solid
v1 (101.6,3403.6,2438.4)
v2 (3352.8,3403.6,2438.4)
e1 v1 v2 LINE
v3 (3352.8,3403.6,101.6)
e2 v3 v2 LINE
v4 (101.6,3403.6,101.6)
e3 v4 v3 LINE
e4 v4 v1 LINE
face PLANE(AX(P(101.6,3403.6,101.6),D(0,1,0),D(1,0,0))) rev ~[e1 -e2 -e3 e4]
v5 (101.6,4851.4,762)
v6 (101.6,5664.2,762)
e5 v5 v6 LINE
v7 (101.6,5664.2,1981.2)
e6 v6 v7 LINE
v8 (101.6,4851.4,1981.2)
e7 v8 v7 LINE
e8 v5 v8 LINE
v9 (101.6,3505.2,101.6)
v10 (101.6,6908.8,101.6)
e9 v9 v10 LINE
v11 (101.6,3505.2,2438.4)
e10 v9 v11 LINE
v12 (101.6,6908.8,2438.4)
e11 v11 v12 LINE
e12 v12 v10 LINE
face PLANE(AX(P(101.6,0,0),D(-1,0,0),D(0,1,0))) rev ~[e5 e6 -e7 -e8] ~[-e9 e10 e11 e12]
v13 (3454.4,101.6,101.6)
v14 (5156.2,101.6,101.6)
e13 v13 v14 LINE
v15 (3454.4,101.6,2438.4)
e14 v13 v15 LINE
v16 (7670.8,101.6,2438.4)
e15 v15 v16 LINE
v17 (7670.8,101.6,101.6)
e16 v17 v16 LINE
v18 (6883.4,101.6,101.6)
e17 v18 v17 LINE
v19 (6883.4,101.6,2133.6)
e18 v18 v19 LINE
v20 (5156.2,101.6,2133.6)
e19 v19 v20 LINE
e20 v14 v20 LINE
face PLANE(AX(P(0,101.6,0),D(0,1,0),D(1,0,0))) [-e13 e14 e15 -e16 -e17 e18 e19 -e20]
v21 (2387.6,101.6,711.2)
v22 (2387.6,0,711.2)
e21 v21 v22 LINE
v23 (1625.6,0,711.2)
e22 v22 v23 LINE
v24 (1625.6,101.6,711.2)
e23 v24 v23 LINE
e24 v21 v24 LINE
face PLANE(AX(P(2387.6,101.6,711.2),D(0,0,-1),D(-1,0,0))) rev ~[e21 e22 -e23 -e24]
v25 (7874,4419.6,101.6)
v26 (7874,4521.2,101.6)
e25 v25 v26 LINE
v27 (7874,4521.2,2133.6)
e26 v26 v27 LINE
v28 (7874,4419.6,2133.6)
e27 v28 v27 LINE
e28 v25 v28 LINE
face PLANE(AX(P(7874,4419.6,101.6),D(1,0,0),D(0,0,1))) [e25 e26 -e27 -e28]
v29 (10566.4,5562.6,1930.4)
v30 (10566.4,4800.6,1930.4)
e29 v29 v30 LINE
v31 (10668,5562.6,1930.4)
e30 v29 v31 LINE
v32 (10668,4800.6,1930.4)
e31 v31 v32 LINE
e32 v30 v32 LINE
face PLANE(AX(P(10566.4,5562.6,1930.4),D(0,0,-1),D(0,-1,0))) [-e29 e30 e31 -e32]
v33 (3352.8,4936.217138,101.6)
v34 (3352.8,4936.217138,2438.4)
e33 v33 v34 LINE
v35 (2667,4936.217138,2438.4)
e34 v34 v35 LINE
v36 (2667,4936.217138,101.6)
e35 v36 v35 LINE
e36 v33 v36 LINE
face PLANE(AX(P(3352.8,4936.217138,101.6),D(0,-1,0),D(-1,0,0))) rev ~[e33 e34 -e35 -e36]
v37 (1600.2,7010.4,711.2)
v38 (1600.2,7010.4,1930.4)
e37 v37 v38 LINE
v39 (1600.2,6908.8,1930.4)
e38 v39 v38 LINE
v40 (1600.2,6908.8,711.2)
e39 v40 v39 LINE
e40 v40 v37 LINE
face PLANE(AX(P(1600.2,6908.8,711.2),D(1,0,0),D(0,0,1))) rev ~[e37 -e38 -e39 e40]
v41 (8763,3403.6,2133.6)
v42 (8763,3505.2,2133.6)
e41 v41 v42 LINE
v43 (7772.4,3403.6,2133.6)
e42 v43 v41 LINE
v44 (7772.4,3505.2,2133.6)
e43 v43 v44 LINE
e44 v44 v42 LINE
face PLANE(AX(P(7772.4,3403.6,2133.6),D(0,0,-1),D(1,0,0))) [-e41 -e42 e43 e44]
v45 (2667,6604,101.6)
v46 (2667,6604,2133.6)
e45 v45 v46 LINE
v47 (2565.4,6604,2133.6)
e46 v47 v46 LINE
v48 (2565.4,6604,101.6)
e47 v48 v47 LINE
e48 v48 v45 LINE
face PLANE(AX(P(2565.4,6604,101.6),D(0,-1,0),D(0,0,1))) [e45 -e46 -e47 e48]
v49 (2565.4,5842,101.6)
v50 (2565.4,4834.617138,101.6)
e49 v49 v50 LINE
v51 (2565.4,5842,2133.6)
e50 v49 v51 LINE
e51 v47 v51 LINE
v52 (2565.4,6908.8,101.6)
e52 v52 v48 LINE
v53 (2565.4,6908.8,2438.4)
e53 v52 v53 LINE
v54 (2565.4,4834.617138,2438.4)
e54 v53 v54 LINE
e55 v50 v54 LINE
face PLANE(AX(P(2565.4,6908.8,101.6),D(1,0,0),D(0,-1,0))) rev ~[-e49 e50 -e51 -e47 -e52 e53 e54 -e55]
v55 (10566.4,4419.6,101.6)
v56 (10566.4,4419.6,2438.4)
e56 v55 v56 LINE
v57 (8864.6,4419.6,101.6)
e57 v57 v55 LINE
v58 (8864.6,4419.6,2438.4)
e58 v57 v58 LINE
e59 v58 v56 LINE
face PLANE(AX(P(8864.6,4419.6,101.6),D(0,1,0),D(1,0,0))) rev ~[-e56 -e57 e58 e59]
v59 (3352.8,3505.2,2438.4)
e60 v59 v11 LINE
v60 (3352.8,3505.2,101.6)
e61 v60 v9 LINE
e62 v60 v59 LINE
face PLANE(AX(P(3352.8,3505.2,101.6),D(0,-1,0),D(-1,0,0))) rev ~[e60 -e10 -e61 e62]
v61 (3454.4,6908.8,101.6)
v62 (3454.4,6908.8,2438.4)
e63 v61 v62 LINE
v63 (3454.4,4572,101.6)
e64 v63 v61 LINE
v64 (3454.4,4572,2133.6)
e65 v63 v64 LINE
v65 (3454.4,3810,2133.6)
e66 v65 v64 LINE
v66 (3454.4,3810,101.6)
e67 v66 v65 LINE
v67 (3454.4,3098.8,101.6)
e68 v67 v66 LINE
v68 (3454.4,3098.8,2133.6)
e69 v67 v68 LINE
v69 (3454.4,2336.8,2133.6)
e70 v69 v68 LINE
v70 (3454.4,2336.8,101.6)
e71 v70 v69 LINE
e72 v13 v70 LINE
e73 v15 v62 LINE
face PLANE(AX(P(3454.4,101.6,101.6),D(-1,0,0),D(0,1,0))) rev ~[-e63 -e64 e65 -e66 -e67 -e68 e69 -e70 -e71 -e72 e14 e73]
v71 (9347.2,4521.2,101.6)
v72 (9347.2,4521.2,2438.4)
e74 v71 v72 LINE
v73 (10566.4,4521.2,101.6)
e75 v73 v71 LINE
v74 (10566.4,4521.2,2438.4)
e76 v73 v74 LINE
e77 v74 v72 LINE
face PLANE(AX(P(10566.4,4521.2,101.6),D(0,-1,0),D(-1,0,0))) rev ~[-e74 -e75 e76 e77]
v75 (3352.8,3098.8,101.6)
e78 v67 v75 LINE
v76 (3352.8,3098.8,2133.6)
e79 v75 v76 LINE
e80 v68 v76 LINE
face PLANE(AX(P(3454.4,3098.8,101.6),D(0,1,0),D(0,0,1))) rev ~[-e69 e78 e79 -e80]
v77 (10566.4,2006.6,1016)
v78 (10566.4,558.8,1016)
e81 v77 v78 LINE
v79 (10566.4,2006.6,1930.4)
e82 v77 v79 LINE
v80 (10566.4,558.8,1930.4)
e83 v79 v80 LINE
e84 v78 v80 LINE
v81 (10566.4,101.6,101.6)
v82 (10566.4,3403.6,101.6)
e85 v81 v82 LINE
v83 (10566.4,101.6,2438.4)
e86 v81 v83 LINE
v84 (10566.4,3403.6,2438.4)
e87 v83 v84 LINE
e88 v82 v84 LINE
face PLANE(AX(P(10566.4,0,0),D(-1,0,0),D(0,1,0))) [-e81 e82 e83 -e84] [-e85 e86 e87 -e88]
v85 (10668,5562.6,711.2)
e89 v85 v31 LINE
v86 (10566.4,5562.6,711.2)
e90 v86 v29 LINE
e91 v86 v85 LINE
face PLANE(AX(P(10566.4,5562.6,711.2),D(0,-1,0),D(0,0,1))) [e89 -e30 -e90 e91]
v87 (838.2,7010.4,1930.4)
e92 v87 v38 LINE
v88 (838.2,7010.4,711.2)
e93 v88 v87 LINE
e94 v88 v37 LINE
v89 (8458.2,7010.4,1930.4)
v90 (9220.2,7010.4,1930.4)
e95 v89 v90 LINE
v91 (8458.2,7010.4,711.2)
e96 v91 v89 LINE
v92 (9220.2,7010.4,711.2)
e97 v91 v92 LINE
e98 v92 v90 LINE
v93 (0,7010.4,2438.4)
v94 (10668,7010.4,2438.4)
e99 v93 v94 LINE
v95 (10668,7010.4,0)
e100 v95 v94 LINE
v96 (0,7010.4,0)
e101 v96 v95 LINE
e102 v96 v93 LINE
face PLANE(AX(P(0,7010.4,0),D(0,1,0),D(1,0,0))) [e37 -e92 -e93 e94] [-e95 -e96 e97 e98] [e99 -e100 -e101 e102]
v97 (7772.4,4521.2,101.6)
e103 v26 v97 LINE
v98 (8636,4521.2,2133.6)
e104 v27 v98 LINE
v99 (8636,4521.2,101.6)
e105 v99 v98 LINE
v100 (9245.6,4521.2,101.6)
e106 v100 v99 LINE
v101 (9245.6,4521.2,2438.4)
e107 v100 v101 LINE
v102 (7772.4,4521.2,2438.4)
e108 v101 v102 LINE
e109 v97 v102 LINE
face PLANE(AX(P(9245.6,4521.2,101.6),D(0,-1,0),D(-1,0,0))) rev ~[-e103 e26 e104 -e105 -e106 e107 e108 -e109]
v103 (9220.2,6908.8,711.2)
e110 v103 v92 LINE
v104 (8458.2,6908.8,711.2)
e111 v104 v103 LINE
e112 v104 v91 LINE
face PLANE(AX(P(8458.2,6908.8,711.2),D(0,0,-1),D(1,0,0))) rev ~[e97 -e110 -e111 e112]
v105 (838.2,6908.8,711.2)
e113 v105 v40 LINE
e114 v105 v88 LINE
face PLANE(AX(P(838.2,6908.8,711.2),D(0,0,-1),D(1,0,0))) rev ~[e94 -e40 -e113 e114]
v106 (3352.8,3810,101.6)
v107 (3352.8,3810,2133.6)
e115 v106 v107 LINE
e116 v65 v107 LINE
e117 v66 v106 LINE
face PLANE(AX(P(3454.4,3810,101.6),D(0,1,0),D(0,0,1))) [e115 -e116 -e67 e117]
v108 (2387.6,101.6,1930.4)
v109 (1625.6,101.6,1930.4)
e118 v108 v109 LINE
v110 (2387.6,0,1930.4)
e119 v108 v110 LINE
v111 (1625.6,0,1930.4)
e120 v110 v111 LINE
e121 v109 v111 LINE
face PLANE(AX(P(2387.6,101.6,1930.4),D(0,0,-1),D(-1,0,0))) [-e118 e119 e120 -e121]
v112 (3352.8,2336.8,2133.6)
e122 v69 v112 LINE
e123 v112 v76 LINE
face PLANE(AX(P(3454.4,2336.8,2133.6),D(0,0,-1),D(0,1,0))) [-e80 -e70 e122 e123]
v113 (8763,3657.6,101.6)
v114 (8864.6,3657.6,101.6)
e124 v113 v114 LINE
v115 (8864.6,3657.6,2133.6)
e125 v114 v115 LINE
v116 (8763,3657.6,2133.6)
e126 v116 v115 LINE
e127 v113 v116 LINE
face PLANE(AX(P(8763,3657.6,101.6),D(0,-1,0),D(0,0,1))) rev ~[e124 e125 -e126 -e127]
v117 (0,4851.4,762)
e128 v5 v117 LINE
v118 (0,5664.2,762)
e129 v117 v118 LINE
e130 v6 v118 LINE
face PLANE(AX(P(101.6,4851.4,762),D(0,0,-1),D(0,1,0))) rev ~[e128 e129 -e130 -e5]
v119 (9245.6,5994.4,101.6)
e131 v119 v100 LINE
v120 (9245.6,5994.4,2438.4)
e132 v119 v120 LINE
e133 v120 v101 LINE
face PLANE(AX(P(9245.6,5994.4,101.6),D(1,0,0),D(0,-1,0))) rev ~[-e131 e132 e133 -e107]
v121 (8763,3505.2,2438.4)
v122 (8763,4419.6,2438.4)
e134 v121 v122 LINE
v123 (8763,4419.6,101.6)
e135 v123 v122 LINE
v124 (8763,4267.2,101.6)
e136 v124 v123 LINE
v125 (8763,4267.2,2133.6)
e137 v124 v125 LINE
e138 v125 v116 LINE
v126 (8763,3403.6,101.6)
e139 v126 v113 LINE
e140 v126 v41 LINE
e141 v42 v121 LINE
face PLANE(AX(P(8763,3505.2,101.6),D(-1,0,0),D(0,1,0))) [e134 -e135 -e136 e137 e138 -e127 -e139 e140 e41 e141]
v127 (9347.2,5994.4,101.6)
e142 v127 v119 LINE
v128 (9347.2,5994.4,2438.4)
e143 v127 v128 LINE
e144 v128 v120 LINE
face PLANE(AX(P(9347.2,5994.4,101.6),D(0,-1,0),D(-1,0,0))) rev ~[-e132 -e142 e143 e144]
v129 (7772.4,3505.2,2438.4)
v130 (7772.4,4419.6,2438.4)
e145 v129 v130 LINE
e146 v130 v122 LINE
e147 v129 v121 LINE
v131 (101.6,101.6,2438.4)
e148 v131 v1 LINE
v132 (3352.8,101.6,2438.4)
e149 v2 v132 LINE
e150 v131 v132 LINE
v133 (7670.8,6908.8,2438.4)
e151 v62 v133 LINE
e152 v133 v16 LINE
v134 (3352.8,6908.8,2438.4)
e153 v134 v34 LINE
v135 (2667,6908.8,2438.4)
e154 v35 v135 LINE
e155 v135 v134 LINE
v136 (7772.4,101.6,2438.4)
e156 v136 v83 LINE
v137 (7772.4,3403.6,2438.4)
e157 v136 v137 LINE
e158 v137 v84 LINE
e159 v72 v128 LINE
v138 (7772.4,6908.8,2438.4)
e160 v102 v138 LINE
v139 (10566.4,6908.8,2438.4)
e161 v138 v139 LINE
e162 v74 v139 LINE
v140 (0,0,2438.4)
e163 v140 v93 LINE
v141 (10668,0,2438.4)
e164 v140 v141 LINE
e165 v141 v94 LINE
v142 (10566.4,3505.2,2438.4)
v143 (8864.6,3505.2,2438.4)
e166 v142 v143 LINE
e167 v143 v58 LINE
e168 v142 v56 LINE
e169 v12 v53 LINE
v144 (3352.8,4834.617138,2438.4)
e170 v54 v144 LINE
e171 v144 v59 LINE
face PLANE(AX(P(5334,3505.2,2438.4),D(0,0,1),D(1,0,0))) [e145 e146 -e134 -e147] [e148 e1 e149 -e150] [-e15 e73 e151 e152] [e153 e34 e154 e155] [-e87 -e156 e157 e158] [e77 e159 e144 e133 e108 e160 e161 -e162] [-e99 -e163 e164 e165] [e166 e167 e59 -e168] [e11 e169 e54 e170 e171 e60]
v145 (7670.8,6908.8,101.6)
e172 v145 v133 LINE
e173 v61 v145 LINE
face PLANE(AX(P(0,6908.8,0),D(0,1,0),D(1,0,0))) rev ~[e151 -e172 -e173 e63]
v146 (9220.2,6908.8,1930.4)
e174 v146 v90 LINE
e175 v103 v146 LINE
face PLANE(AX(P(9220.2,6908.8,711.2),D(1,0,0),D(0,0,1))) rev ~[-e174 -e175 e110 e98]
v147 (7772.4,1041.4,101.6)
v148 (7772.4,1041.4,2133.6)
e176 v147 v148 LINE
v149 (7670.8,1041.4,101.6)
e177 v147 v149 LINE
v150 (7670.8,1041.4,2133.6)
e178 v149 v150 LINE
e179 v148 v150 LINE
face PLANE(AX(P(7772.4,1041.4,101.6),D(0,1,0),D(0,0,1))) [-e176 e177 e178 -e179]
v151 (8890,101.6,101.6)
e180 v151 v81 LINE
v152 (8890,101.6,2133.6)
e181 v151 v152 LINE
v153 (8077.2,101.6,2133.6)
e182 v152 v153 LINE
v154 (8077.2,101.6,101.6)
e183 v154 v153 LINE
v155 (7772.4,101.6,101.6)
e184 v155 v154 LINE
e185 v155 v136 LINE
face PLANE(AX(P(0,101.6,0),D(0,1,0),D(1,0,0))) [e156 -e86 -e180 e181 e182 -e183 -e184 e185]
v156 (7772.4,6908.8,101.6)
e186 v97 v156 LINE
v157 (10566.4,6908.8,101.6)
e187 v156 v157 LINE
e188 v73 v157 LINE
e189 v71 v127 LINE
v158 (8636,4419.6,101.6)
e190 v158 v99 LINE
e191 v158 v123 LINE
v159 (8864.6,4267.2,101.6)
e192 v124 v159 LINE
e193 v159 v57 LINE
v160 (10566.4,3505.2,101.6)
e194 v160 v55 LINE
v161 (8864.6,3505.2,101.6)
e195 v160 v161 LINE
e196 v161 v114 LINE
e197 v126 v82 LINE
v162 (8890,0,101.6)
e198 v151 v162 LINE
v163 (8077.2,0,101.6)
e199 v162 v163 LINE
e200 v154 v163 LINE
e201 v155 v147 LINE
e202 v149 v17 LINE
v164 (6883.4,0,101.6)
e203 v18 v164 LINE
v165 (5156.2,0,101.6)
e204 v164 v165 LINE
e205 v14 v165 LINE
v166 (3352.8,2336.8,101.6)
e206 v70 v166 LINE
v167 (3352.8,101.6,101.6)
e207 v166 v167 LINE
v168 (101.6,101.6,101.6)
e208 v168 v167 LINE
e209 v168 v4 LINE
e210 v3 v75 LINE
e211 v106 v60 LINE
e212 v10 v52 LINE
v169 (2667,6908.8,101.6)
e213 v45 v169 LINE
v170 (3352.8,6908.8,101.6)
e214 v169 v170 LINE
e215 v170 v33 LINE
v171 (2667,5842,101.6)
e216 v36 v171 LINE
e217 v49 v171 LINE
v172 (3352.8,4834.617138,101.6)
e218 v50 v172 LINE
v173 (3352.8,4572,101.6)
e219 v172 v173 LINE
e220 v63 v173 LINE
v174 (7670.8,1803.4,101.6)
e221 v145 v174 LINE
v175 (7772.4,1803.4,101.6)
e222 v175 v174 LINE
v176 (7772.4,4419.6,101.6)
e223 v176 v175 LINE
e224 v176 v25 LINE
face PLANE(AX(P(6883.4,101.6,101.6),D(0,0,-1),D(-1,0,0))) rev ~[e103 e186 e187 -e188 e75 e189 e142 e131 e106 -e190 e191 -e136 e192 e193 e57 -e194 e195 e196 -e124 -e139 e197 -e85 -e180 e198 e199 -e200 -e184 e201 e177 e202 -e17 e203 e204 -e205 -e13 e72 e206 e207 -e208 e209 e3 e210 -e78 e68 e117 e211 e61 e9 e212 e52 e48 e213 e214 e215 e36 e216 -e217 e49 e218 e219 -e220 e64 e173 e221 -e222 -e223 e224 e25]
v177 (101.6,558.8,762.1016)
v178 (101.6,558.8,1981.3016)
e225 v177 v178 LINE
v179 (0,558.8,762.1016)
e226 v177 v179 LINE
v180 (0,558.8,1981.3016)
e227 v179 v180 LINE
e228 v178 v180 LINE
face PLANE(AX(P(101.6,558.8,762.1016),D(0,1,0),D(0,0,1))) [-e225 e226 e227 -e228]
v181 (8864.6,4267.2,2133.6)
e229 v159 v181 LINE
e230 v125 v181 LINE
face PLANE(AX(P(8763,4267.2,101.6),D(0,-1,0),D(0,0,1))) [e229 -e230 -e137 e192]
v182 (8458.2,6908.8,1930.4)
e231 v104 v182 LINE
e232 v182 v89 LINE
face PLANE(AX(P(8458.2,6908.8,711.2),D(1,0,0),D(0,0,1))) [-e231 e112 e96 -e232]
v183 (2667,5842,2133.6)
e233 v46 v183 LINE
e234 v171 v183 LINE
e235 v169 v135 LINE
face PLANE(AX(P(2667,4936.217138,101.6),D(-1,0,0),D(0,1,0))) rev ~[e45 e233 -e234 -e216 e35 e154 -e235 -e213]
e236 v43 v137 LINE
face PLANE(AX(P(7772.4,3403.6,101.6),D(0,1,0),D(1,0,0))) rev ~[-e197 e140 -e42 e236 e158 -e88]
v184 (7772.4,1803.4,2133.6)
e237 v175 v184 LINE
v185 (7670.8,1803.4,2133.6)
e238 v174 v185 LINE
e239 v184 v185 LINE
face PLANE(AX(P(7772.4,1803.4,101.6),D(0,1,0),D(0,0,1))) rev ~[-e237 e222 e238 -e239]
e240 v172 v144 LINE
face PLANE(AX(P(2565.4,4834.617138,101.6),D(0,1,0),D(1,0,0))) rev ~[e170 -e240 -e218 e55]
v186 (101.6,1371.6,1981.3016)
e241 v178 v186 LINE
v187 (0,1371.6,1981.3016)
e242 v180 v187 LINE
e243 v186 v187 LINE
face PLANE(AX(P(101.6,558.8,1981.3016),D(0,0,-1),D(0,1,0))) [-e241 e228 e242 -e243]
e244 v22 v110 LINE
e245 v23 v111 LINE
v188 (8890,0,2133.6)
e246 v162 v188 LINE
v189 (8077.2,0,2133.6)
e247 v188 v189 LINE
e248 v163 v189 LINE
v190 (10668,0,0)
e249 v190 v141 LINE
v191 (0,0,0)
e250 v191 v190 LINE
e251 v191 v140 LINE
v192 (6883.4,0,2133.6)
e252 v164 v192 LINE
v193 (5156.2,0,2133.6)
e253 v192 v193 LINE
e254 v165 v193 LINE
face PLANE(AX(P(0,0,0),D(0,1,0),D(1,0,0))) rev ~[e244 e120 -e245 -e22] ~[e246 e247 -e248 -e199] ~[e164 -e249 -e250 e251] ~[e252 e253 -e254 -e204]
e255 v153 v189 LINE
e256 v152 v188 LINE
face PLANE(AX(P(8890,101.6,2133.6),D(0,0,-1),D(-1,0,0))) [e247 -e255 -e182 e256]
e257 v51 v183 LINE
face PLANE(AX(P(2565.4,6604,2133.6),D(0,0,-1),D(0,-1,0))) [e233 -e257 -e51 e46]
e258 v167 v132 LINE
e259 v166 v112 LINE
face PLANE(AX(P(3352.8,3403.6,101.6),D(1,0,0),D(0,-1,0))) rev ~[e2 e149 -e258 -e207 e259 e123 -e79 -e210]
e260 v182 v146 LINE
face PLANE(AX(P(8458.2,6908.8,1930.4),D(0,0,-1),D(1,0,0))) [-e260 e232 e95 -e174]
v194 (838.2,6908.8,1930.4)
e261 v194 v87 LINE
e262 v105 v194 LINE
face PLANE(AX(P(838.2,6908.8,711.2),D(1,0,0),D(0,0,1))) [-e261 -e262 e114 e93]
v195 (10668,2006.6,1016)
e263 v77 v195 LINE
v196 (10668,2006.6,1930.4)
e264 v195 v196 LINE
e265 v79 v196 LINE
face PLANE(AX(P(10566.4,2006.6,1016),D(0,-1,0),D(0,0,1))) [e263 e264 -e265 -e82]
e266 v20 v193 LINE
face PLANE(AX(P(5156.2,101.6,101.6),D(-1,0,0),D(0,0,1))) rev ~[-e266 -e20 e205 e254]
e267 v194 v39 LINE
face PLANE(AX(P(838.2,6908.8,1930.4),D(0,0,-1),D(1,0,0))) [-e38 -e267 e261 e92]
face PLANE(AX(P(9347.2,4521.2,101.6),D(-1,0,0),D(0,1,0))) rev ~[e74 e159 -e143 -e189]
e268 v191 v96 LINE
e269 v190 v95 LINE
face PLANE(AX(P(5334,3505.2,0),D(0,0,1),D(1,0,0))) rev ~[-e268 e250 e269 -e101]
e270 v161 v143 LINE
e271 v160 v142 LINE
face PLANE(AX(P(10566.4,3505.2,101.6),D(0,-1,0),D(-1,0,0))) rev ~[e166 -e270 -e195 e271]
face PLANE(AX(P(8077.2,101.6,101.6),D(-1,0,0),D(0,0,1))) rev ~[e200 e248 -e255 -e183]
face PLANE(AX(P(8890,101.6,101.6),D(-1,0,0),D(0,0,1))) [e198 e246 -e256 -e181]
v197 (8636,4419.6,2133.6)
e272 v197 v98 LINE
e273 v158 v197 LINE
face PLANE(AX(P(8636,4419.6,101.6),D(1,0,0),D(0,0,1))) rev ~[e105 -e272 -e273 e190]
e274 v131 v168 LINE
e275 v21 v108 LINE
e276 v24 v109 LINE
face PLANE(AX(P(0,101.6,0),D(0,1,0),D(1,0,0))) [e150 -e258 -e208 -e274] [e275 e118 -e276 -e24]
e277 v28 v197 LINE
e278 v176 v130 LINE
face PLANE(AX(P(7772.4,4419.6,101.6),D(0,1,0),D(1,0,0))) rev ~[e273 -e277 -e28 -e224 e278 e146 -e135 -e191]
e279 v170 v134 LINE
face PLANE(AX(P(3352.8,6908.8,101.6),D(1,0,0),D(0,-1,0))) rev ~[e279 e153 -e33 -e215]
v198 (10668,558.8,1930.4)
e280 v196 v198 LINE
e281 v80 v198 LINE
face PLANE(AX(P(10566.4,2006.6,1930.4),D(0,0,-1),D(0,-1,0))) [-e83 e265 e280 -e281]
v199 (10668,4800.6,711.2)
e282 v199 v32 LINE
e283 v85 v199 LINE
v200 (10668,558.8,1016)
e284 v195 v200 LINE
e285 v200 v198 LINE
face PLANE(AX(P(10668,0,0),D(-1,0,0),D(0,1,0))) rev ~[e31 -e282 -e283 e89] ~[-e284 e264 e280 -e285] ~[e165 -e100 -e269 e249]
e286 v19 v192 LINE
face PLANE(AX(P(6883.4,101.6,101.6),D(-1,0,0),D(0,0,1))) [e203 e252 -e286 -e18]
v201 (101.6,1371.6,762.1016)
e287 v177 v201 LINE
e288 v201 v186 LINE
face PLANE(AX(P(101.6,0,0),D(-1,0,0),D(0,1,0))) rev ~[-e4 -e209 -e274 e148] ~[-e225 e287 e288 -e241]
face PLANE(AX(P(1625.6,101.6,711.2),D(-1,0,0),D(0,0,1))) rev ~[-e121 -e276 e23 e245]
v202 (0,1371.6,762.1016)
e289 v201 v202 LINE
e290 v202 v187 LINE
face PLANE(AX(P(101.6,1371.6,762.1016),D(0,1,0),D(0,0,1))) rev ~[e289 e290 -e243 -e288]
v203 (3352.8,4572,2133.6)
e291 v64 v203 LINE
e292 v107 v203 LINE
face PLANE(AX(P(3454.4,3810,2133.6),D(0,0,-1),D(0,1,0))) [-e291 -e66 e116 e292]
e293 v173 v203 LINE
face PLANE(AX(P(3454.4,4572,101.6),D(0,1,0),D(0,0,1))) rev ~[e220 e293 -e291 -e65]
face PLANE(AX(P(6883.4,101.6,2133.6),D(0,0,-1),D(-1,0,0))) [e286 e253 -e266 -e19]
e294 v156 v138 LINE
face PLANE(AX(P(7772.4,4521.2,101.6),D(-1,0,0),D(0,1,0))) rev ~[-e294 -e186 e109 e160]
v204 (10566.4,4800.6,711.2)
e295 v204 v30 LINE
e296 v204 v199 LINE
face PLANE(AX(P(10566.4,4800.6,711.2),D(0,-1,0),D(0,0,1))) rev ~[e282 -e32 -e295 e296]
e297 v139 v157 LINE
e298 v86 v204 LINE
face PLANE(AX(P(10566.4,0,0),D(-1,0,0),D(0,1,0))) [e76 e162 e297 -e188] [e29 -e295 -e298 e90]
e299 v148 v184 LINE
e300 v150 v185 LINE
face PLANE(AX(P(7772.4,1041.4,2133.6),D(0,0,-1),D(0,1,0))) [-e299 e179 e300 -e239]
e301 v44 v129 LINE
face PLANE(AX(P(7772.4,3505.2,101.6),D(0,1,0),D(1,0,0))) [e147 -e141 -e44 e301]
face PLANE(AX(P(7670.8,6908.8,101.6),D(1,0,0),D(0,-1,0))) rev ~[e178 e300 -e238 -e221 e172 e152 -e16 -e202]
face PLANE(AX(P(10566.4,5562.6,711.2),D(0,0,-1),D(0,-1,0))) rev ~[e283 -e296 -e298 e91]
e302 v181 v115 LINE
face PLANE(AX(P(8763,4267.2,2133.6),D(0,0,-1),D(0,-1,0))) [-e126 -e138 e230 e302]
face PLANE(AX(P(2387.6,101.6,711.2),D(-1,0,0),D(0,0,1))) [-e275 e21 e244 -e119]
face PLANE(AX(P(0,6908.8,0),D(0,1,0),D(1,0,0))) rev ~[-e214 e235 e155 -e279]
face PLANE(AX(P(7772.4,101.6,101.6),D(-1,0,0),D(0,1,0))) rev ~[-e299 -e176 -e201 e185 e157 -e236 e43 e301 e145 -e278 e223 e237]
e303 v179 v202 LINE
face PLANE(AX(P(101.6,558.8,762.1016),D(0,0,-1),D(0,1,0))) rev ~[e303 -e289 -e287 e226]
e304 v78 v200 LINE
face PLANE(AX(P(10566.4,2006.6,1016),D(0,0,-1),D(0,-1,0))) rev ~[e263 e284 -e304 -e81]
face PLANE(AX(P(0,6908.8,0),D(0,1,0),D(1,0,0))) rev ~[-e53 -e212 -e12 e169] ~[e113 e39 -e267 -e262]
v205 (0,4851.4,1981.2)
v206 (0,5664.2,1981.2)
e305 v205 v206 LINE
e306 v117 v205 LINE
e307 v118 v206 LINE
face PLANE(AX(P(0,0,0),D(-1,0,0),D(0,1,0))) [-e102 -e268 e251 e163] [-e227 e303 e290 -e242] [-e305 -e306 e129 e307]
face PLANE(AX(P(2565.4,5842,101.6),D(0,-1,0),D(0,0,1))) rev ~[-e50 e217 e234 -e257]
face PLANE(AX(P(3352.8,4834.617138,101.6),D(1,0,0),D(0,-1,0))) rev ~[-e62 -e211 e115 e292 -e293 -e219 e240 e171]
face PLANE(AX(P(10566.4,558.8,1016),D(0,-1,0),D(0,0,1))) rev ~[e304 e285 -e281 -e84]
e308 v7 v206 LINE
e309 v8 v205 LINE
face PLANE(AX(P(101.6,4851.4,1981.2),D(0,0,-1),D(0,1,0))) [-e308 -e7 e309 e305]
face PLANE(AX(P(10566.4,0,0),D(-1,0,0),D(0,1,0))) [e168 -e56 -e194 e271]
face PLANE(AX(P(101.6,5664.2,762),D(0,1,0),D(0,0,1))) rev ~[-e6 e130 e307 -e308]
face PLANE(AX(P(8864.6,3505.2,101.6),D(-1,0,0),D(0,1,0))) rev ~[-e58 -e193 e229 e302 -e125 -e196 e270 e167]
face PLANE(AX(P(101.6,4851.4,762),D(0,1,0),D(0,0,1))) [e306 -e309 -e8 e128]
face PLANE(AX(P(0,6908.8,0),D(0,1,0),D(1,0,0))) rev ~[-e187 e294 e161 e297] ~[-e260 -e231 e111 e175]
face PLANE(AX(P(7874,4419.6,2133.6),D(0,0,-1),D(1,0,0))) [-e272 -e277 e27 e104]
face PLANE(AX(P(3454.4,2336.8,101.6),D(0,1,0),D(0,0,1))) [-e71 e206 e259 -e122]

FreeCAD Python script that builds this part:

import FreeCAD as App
import Part
import Sketcher

V = App.Vector
Q = App.Units.Quantity


def faces_at(feature, points):
    """Names of the faces that lie closest to the given points."""
    faces = feature.Shape.Faces
    near = lambda p: min(range(len(faces)), key=lambda i: faces[i].distToShape(Part.Vertex(*p))[0])
    return sorted({f"Face{near(p) + 1}" for p in points})


def add_polygon(sketch, points):
    """Adds a closed chain of lines whose ends are joined by coincident constraints."""
    first, n = sketch.GeometryCount, len(points)
    for a, b in zip(points, points[1:] + points[:1]):
        sketch.addGeometry(Part.LineSegment(App.Vector(*a, 0), App.Vector(*b, 0)), False)
    for i in range(n):
        sketch.addConstraint(Sketcher.Constraint("Coincident", first + i, 2, first + (i + 1) % n, 1))

doc = App.newDocument("Part")
params = doc.addObject("Spreadsheet::Sheet", "Params")
for row, (alias, value) in enumerate([
    ("sketch1_width", "420 in"),
    ("sketch1_height", "276 in"),
    ("pad1_length", "96 in"),
    ("thickness_wall", "4 in"),
    ("sketch2_width", "4 in"),
    ("sketch2_width2", "27 in"),
    ("sketch2_width3", "128 in"),
    ("sketch2_width4", "110 in"),
    ("sketch2_width5", "67 in"),
    ("pad2_length", "92 in"),
    ("sketch3_width", "32 in"),
    ("sketch3_height", "80 in"),
    ("sketch4_width", "32 in"),
    ("sketch4_height", "48 in"),
    ("sketch5_width", "30 in"),
    ("sketch5_height", "48 in"),
    ("sketch6_width", "30 in"),
    ("sketch6_height", "80 in"),
    ("pocket4_length", "4 in"),
    ("sketch7_width", "57 in"),
    ("sketch7_height", "36 in"),
    ("sketch8_width", "30 in"),
    ("sketch8_height", "48 in"),
    ("sketch9_width", "30 in"),
    ("sketch9_height", "48 in"),
    ("sketch10_width", "30 in"),
    ("sketch10_height", "48 in"),
    ("sketch11_width", "68 in"),
    ("sketch11_height", "80 in"),
    ("sketch12_width", "30 in"),
    ("sketch12_height", "80 in"),
    ("pocket10_length", "4 in"),
    ("sketch13_width", "32 in"),
    ("sketch13_height", "48 in"),
    ("sketch14_width", "30 in"),
    ("sketch14_height", "80 in"),
    ("pocket12_length", "4 in"),
    ("sketch15_width", "30 in"),
    ("sketch15_height", "80 in"),
    ("pocket13_length", "4 in"),
    ("sketch16_width", "24 in"),
    ("sketch16_height", "80 in"),
    ("pocket14_length", "4 in"),
    ("sketch17_width", "39 in"),
    ("sketch17_height", "80 in"),
    ("pocket15_length", "4 in"),
    ("sketch18_width", "30 in"),
    ("sketch18_height", "80 in"),
    ("pocket16_length", "4 in"),
], start=1):
    params.set(f"A{row}", alias)
    params.set(f"B{row}", "=" + value)
    params.setAlias(f"B{row}", alias)

body = doc.addObject("PartDesign::Body", "Body")

# Sketch on XY plane
sketch1 = doc.addObject("Sketcher::SketchObject", "Sketch")
body.addObject(sketch1)
sketch1.AttachmentSupport = (doc.XY_Plane, [""])
sketch1.MapMode = "FlatFace"
add_polygon(sketch1, [(0, 7010.4), (0, 0), (10668, 0), (10668, 7010.4)])  # lines 0-3
sketch1.addConstraint(Sketcher.Constraint("Vertical", 0))
sketch1.addConstraint(Sketcher.Constraint("Horizontal", 1))
sketch1.addConstraint(Sketcher.Constraint("Vertical", 2))
sketch1.addConstraint(Sketcher.Constraint("Horizontal", 3))
sketch1.addConstraint(Sketcher.Constraint("Coincident", 0, 2, -1, 1))
sketch1.addConstraint(Sketcher.Constraint("DistanceX", 1, 1, 1, 2, Q("420 in")))
sketch1.addConstraint(Sketcher.Constraint("DistanceY", 0, 2, 0, 1, Q("276 in")))
sketch1.setExpression("Constraints[9]", "Params.sketch1_width")
sketch1.setExpression("Constraints[10]", "Params.sketch1_height")
pad1 = doc.addObject("PartDesign::Pad", "Pad")
body.addObject(pad1)
pad1.Profile = sketch1
pad1.setExpression("Length", "Params.pad1_length")
doc.recompute()

thickness = doc.addObject("PartDesign::Thickness", "Thickness")
body.addObject(thickness)
thickness.Base = (pad1, faces_at(pad1, [(5334, 3505.2, 2438.4)]))
thickness.setExpression("Value", "Params.thickness_wall")
thickness.Reversed = True
thickness.Join = "Arc"

# Sketch on XY plane
sketch2 = doc.addObject("Sketcher::SketchObject", "Sketch001")
body.addObject(sketch2)
sketch2.AttachmentSupport = (doc.XY_Plane, [""])
sketch2.MapMode = "FlatFace"
sketch2.AttachmentOffset = App.Placement(V(0, 0, 4 * 25.4), App.Rotation())
add_polygon(sketch2, [(3352.8, 101.6), (3454.4, 101.6), (3454.4, 6908.8), (3352.8, 6908.8), (3352.8, 4936.217138), (2667, 4936.217138), (2667, 6908.8), (2565.4, 6908.8), (2565.4, 4834.617138), (3352.8, 4834.617138), (3352.8, 3505.2), (101.6, 3505.2), (101.6, 3403.6), (3352.8, 3403.6)])  # lines 0-13
add_polygon(sketch2, [(7772.4, 3403.6), (10566.4, 3403.6), (10566.4, 3505.2), (8864.6, 3505.2), (8864.6, 4419.6), (10566.4, 4419.6), (10566.4, 4521.2), (9347.2, 4521.2), (9347.2, 5994.4), (9245.6, 5994.4), (9245.6, 4521.2), (7772.4, 4521.2), (7772.4, 6908.8), (7670.8, 6908.8), (7670.8, 101.6), (7772.4, 101.6)])  # lines 14-29
add_polygon(sketch2, [(8763, 3505.2), (7772.4, 3505.2), (7772.4, 4419.6), (8763, 4419.6)])  # lines 30-33
sketch2.addConstraint(Sketcher.Constraint("Horizontal", 0))
sketch2.addConstraint(Sketcher.Constraint("Vertical", 1))
sketch2.addConstraint(Sketcher.Constraint("Horizontal", 2))
sketch2.addConstraint(Sketcher.Constraint("Vertical", 3))
sketch2.addConstraint(Sketcher.Constraint("Horizontal", 4))
sketch2.addConstraint(Sketcher.Constraint("Vertical", 5))
sketch2.addConstraint(Sketcher.Constraint("Horizontal", 6))
sketch2.addConstraint(Sketcher.Constraint("Vertical", 7))
sketch2.addConstraint(Sketcher.Constraint("Horizontal", 8))
sketch2.addConstraint(Sketcher.Constraint("Vertical", 9))
sketch2.addConstraint(Sketcher.Constraint("Horizontal", 10))
sketch2.addConstraint(Sketcher.Constraint("Vertical", 11))
sketch2.addConstraint(Sketcher.Constraint("Horizontal", 12))
sketch2.addConstraint(Sketcher.Constraint("Vertical", 13))
sketch2.addConstraint(Sketcher.Constraint("Horizontal", 14))
sketch2.addConstraint(Sketcher.Constraint("Vertical", 15))
sketch2.addConstraint(Sketcher.Constraint("Horizontal", 16))
sketch2.addConstraint(Sketcher.Constraint("Vertical", 17))
sketch2.addConstraint(Sketcher.Constraint("Horizontal", 18))
sketch2.addConstraint(Sketcher.Constraint("Vertical", 19))
sketch2.addConstraint(Sketcher.Constraint("Horizontal", 20))
sketch2.addConstraint(Sketcher.Constraint("Vertical", 21))
sketch2.addConstraint(Sketcher.Constraint("Horizontal", 22))
sketch2.addConstraint(Sketcher.Constraint("Vertical", 23))
sketch2.addConstraint(Sketcher.Constraint("Horizontal", 24))
sketch2.addConstraint(Sketcher.Constraint("Vertical", 25))
sketch2.addConstraint(Sketcher.Constraint("Horizontal", 26))
sketch2.addConstraint(Sketcher.Constraint("Vertical", 27))
sketch2.addConstraint(Sketcher.Constraint("Horizontal", 28))
sketch2.addConstraint(Sketcher.Constraint("Vertical", 29))
sketch2.addConstraint(Sketcher.Constraint("Horizontal", 30))
sketch2.addConstraint(Sketcher.Constraint("Vertical", 31))
sketch2.addConstraint(Sketcher.Constraint("Horizontal", 32))
sketch2.addConstraint(Sketcher.Constraint("Vertical", 33))
sketch2.addConstraint(Sketcher.Constraint("Horizontal", 2, 2, 5, 2))
sketch2.addConstraint(Sketcher.Constraint("Horizontal", 12, 2, 14, 2))
sketch2.addConstraint(Sketcher.Constraint("Horizontal", 10, 2, 15, 2))
sketch2.addConstraint(Sketcher.Constraint("Horizontal", 20, 2, 23, 2))
sketch2.addConstraint(Sketcher.Constraint("Horizontal", 6, 2, 25, 2))
sketch2.addConstraint(Sketcher.Constraint("Horizontal", 13, 2, 27, 2))
sketch2.addConstraint(Sketcher.Constraint("Horizontal", 16, 2, 30, 2))
sketch2.addConstraint(Sketcher.Constraint("Horizontal", 18, 2, 31, 2))
sketch2.addConstraint(Sketcher.Constraint("Vertical", 3, 2, 8, 2))
sketch2.addConstraint(Sketcher.Constraint("Vertical", 9, 2, 12, 2))
sketch2.addConstraint(Sketcher.Constraint("Vertical", 15, 2, 18, 2))
sketch2.addConstraint(Sketcher.Constraint("Vertical", 25, 2, 28, 2))
sketch2.addConstraint(Sketcher.Constraint("Vertical", 29, 2, 30, 2))
sketch2.addConstraint(Sketcher.Constraint("Equal", 2, 6))
sketch2.addConstraint(Sketcher.Constraint("Equal", 6, 22))
sketch2.addConstraint(Sketcher.Constraint("Equal", 22, 26))
sketch2.addConstraint(Sketcher.Constraint("Equal", 28, 11))
sketch2.addConstraint(Sketcher.Constraint("Equal", 15, 19))
sketch2.addConstraint(Sketcher.Constraint("Equal", 24, 21))
sketch2.addConstraint(Sketcher.Constraint("DistanceX", 0, 1, 0, 2, Q("4 in")))
sketch2.addConstraint(Sketcher.Constraint("DistanceX", 4, 2, 4, 1, Q("27 in")))
sketch2.addConstraint(Sketcher.Constraint("DistanceX", 10, 2, 10, 1, Q("128 in")))
sketch2.addConstraint(Sketcher.Constraint("DistanceX", 14, 1, 14, 2, Q("110 in")))
sketch2.addConstraint(Sketcher.Constraint("DistanceX", 16, 2, 16, 1, Q("67 in")))
sketch2.addConstraint(Sketcher.Constraint("DistanceX", 20, 2, 20, 1, Q("48 in")))
sketch2.addConstraint(Sketcher.Constraint("DistanceX", 30, 2, 30, 1, Q("39 in")))
sketch2.addConstraint(Sketcher.Constraint("DistanceY", 1, 1, 1, 2, Q("268 in")))
sketch2.addConstraint(Sketcher.Constraint("DistanceY", 13, 2, 13, 1, Q("130 in")))
sketch2.addConstraint(Sketcher.Constraint("DistanceY", 17, 1, 17, 2, Q("36 in")))
sketch2.addConstraint(Sketcher.Constraint("DistanceX", -1, 1, 0, 2, Q("136 in")))
sketch2.addConstraint(Sketcher.Constraint("DistanceY", -1, 1, 0, 2, Q("4 in")))
sketch2.addConstraint(Sketcher.Constraint("DistanceX", -1, 1, 14, 2, Q("416 in")))
sketch2.addConstraint(Sketcher.Constraint("DistanceY", 7, 2, 4, 2, Q("4 in")))
sketch2.addConstraint(Sketcher.Constraint("DistanceY", 3, 2, 3, 1, Q("1972.582862 mm")))
sketch2.setExpression("Constraints[87]", "Params.sketch2_width")
sketch2.setExpression("Constraints[88]", "Params.sketch2_width2")
sketch2.setExpression("Constraints[89]", "Params.sketch2_width3")
sketch2.setExpression("Constraints[90]", "Params.sketch2_width4")
sketch2.setExpression("Constraints[91]", "Params.sketch2_width5")
pad2 = doc.addObject("PartDesign::Pad", "Pad001")
body.addObject(pad2)
pad2.Profile = sketch2
pad2.setExpression("Length", "Params.pad2_length")

# Sketch on XZ plane
sketch3 = doc.addObject("Sketcher::SketchObject", "Sketch002")
body.addObject(sketch3)
sketch3.AttachmentSupport = (doc.XZ_Plane, [""])
sketch3.MapMode = "FlatFace"
sketch3.AttachmentOffset = App.Placement(V(0, 0, -4 * 25.4), App.Rotation())
add_polygon(sketch3, [(8890, 2133.6), (8890, 101.6), (8077.2, 101.6), (8077.2, 2133.6)])  # lines 0-3
sketch3.addConstraint(Sketcher.Constraint("Vertical", 0))
sketch3.addConstraint(Sketcher.Constraint("Horizontal", 1))
sketch3.addConstraint(Sketcher.Constraint("Vertical", 2))
sketch3.addConstraint(Sketcher.Constraint("Horizontal", 3))
sketch3.addConstraint(Sketcher.Constraint("DistanceX", 1, 2, 1, 1, Q("32 in")))
sketch3.addConstraint(Sketcher.Constraint("DistanceY", 0, 2, 0, 1, Q("80 in")))
sketch3.addConstraint(Sketcher.Constraint("DistanceX", -1, 1, 0, 2, Q("350 in")))
sketch3.addConstraint(Sketcher.Constraint("DistanceY", -1, 1, 0, 2, Q("4 in")))
sketch3.setExpression("Constraints[8]", "Params.sketch3_width")
sketch3.setExpression("Constraints[9]", "Params.sketch3_height")
pocket1 = doc.addObject("PartDesign::Pocket", "Pocket")
body.addObject(pocket1)
pocket1.Profile = sketch3
pocket1.Type = "ThroughAll"
pocket1.Reversed = True

# Sketch on YZ plane
sketch4 = doc.addObject("Sketcher::SketchObject", "Sketch003")
body.addObject(sketch4)
sketch4.AttachmentSupport = (doc.YZ_Plane, [""])
sketch4.MapMode = "FlatFace"
sketch4.AttachmentOffset = App.Placement(V(0, 0, 4 * 25.4), App.Rotation())
add_polygon(sketch4, [(4851.4, 1981.2), (4851.4, 762), (5664.2, 762), (5664.2, 1981.2)])  # lines 0-3
sketch4.addConstraint(Sketcher.Constraint("Vertical", 0))
sketch4.addConstraint(Sketcher.Constraint("Horizontal", 1))
sketch4.addConstraint(Sketcher.Constraint("Vertical", 2))
sketch4.addConstraint(Sketcher.Constraint("Horizontal", 3))
sketch4.addConstraint(Sketcher.Constraint("DistanceX", 1, 1, 1, 2, Q("32 in")))
sketch4.addConstraint(Sketcher.Constraint("DistanceY", 0, 2, 0, 1, Q("48 in")))
sketch4.addConstraint(Sketcher.Constraint("DistanceX", -1, 1, 0, 2, Q("191 in")))
sketch4.addConstraint(Sketcher.Constraint("DistanceY", -1, 1, 0, 2, Q("30 in")))
sketch4.setExpression("Constraints[8]", "Params.sketch4_width")
sketch4.setExpression("Constraints[9]", "Params.sketch4_height")
pocket2 = doc.addObject("PartDesign::Pocket", "Pocket001")
body.addObject(pocket2)
pocket2.Profile = sketch4
pocket2.Type = "ThroughAll"

# Sketch on XZ plane
sketch5 = doc.addObject("Sketcher::SketchObject", "Sketch004")
body.addObject(sketch5)
sketch5.AttachmentSupport = (doc.XZ_Plane, [""])
sketch5.MapMode = "FlatFace"
sketch5.AttachmentOffset = App.Placement(V(0, 0, -272 * 25.4), App.Rotation())
add_polygon(sketch5, [(838.2, 1930.4), (838.2, 711.2), (1600.2, 711.2), (1600.2, 1930.4)])  # lines 0-3
sketch5.addConstraint(Sketcher.Constraint("Vertical", 0))
sketch5.addConstraint(Sketcher.Constraint("Horizontal", 1))
sketch5.addConstraint(Sketcher.Constraint("Vertical", 2))
sketch5.addConstraint(Sketcher.Constraint("Horizontal", 3))
sketch5.addConstraint(Sketcher.Constraint("DistanceX", 1, 1, 1, 2, Q("30 in")))
sketch5.addConstraint(Sketcher.Constraint("DistanceY", 0, 2, 0, 1, Q("48 in")))
sketch5.addConstraint(Sketcher.Constraint("DistanceX", -1, 1, 0, 2, Q("33 in")))
sketch5.addConstraint(Sketcher.Constraint("DistanceY", -1, 1, 0, 2, Q("28 in")))
sketch5.setExpression("Constraints[8]", "Params.sketch5_width")
sketch5.setExpression("Constraints[9]", "Params.sketch5_height")
pocket3 = doc.addObject("PartDesign::Pocket", "Pocket002")
body.addObject(pocket3)
pocket3.Profile = sketch5
pocket3.Type = "ThroughAll"

# Sketch on YZ plane
sketch6 = doc.addObject("Sketcher::SketchObject", "Sketch005")
body.addObject(sketch6)
sketch6.AttachmentSupport = (doc.YZ_Plane, [""])
sketch6.MapMode = "FlatFace"
sketch6.AttachmentOffset = App.Placement(V(0, 0, 306 * 25.4), App.Rotation())
add_polygon(sketch6, [(1041.4, 2133.6), (1041.4, 101.6), (1803.4, 101.6), (1803.4, 2133.6)])  # lines 0-3
sketch6.addConstraint(Sketcher.Constraint("Vertical", 0))
sketch6.addConstraint(Sketcher.Constraint("Horizontal", 1))
sketch6.addConstraint(Sketcher.Constraint("Vertical", 2))
sketch6.addConstraint(Sketcher.Constraint("Horizontal", 3))
sketch6.addConstraint(Sketcher.Constraint("DistanceX", 1, 1, 1, 2, Q("30 in")))
sketch6.addConstraint(Sketcher.Constraint("DistanceY", 0, 2, 0, 1, Q("80 in")))
sketch6.addConstraint(Sketcher.Constraint("DistanceX", -1, 1, 0, 2, Q("41 in")))
sketch6.addConstraint(Sketcher.Constraint("DistanceY", -1, 1, 0, 2, Q("4 in")))
sketch6.setExpression("Constraints[8]", "Params.sketch6_width")
sketch6.setExpression("Constraints[9]", "Params.sketch6_height")
pocket4 = doc.addObject("PartDesign::Pocket", "Pocket003")
body.addObject(pocket4)
pocket4.Profile = sketch6
pocket4.setExpression("Length", "Params.pocket4_length")

# Sketch on YZ plane
sketch7 = doc.addObject("Sketcher::SketchObject", "Sketch006")
body.addObject(sketch7)
sketch7.AttachmentSupport = (doc.YZ_Plane, [""])
sketch7.MapMode = "FlatFace"
sketch7.AttachmentOffset = App.Placement(V(0, 0, 416 * 25.4), App.Rotation())
add_polygon(sketch7, [(2006.6, 1930.4), (2006.6, 1016), (558.8, 1016), (558.8, 1930.4)])  # lines 0-3
sketch7.addConstraint(Sketcher.Constraint("Vertical", 0))
sketch7.addConstraint(Sketcher.Constraint("Horizontal", 1))
sketch7.addConstraint(Sketcher.Constraint("Vertical", 2))
sketch7.addConstraint(Sketcher.Constraint("Horizontal", 3))
sketch7.addConstraint(Sketcher.Constraint("DistanceX", 1, 2, 1, 1, Q("57 in")))
sketch7.addConstraint(Sketcher.Constraint("DistanceY", 0, 2, 0, 1, Q("36 in")))
sketch7.addConstraint(Sketcher.Constraint("DistanceX", -1, 1, 0, 2, Q("79 in")))
sketch7.addConstraint(Sketcher.Constraint("DistanceY", -1, 1, 0, 2, Q("40 in")))
sketch7.setExpression("Constraints[8]", "Params.sketch7_width")
sketch7.setExpression("Constraints[9]", "Params.sketch7_height")
pocket5 = doc.addObject("PartDesign::Pocket", "Pocket004")
body.addObject(pocket5)
pocket5.Profile = sketch7
pocket5.Type = "ThroughAll"
pocket5.Reversed = True

# Sketch on XZ plane
sketch8 = doc.addObject("Sketcher::SketchObject", "Sketch007")
body.addObject(sketch8)
sketch8.AttachmentSupport = (doc.XZ_Plane, [""])
sketch8.MapMode = "FlatFace"
sketch8.AttachmentOffset = App.Placement(V(0, 0, -272 * 25.4), App.Rotation())
add_polygon(sketch8, [(8458.2, 1930.4), (8458.2, 711.2), (9220.2, 711.2), (9220.2, 1930.4)])  # lines 0-3
sketch8.addConstraint(Sketcher.Constraint("Vertical", 0))
sketch8.addConstraint(Sketcher.Constraint("Horizontal", 1))
sketch8.addConstraint(Sketcher.Constraint("Vertical", 2))
sketch8.addConstraint(Sketcher.Constraint("Horizontal", 3))
sketch8.addConstraint(Sketcher.Constraint("DistanceX", 1, 1, 1, 2, Q("30 in")))
sketch8.addConstraint(Sketcher.Constraint("DistanceY", 0, 2, 0, 1, Q("48 in")))
sketch8.addConstraint(Sketcher.Constraint("DistanceX", -1, 1, 0, 2, Q("333 in")))
sketch8.addConstraint(Sketcher.Constraint("DistanceY", -1, 1, 0, 2, Q("28 in")))
sketch8.setExpression("Constraints[8]", "Params.sketch8_width")
sketch8.setExpression("Constraints[9]", "Params.sketch8_height")
pocket6 = doc.addObject("PartDesign::Pocket", "Pocket005")
body.addObject(pocket6)
pocket6.Profile = sketch8
pocket6.Type = "ThroughAll"

# Sketch on YZ plane
sketch9 = doc.addObject("Sketcher::SketchObject", "Sketch008")
body.addObject(sketch9)
sketch9.AttachmentSupport = (doc.YZ_Plane, [""])
sketch9.MapMode = "FlatFace"
sketch9.AttachmentOffset = App.Placement(V(0, 0, 416 * 25.4), App.Rotation())
add_polygon(sketch9, [(5562.6, 1930.4), (5562.6, 711.2), (4800.6, 711.2), (4800.6, 1930.4)])  # lines 0-3
sketch9.addConstraint(Sketcher.Constraint("Vertical", 0))
sketch9.addConstraint(Sketcher.Constraint("Horizontal", 1))
sketch9.addConstraint(Sketcher.Constraint("Vertical", 2))
sketch9.addConstraint(Sketcher.Constraint("Horizontal", 3))
sketch9.addConstraint(Sketcher.Constraint("DistanceX", 1, 2, 1, 1, Q("30 in")))
sketch9.addConstraint(Sketcher.Constraint("DistanceY", 0, 2, 0, 1, Q("48 in")))
sketch9.addConstraint(Sketcher.Constraint("DistanceX", -1, 1, 0, 2, Q("219 in")))
sketch9.addConstraint(Sketcher.Constraint("DistanceY", -1, 1, 0, 2, Q("28 in")))
sketch9.setExpression("Constraints[8]", "Params.sketch9_width")
sketch9.setExpression("Constraints[9]", "Params.sketch9_height")
pocket7 = doc.addObject("PartDesign::Pocket", "Pocket006")
body.addObject(pocket7)
pocket7.Profile = sketch9
pocket7.Type = "ThroughAll"
pocket7.Reversed = True

# Sketch on XZ plane
sketch10 = doc.addObject("Sketcher::SketchObject", "Sketch009")
body.addObject(sketch10)
sketch10.AttachmentSupport = (doc.XZ_Plane, [""])
sketch10.MapMode = "FlatFace"
sketch10.AttachmentOffset = App.Placement(V(0, 0, -4 * 25.4), App.Rotation())
add_polygon(sketch10, [(2387.6, 1930.4), (2387.6, 711.2), (1625.6, 711.2), (1625.6, 1930.4)])  # lines 0-3
sketch10.addConstraint(Sketcher.Constraint("Vertical", 0))
sketch10.addConstraint(Sketcher.Constraint("Horizontal", 1))
sketch10.addConstraint(Sketcher.Constraint("Vertical", 2))
sketch10.addConstraint(Sketcher.Constraint("Horizontal", 3))
sketch10.addConstraint(Sketcher.Constraint("DistanceX", 1, 2, 1, 1, Q("30 in")))
sketch10.addConstraint(Sketcher.Constraint("DistanceY", 0, 2, 0, 1, Q("48 in")))
sketch10.addConstraint(Sketcher.Constraint("DistanceX", -1, 1, 0, 2, Q("94 in")))
sketch10.addConstraint(Sketcher.Constraint("DistanceY", -1, 1, 0, 2, Q("28 in")))
sketch10.setExpression("Constraints[8]", "Params.sketch10_width")
sketch10.setExpression("Constraints[9]", "Params.sketch10_height")
pocket8 = doc.addObject("PartDesign::Pocket", "Pocket007")
body.addObject(pocket8)
pocket8.Profile = sketch10
pocket8.Type = "ThroughAll"
pocket8.Reversed = True

# Sketch on XZ plane
sketch11 = doc.addObject("Sketcher::SketchObject", "Sketch010")
body.addObject(sketch11)
sketch11.AttachmentSupport = (doc.XZ_Plane, [""])
sketch11.MapMode = "FlatFace"
sketch11.AttachmentOffset = App.Placement(V(0, 0, -4 * 25.4), App.Rotation())
add_polygon(sketch11, [(6883.4, 2133.6), (6883.4, 101.6), (5156.2, 101.6), (5156.2, 2133.6)])  # lines 0-3
sketch11.addConstraint(Sketcher.Constraint("Vertical", 0))
sketch11.addConstraint(Sketcher.Constraint("Horizontal", 1))
sketch11.addConstraint(Sketcher.Constraint("Vertical", 2))
sketch11.addConstraint(Sketcher.Constraint("Horizontal", 3))
sketch11.addConstraint(Sketcher.Constraint("DistanceX", 1, 2, 1, 1, Q("68 in")))
sketch11.addConstraint(Sketcher.Constraint("DistanceY", 0, 2, 0, 1, Q("80 in")))
sketch11.addConstraint(Sketcher.Constraint("DistanceX", -1, 1, 0, 2, Q("271 in")))
sketch11.addConstraint(Sketcher.Constraint("DistanceY", -1, 1, 0, 2, Q("4 in")))
sketch11.setExpression("Constraints[8]", "Params.sketch11_width")
sketch11.setExpression("Constraints[9]", "Params.sketch11_height")
pocket9 = doc.addObject("PartDesign::Pocket", "Pocket008")
body.addObject(pocket9)
pocket9.Profile = sketch11
pocket9.Type = "ThroughAll"
pocket9.Reversed = True

# Sketch on YZ plane
sketch12 = doc.addObject("Sketcher::SketchObject", "Sketch011")
body.addObject(sketch12)
sketch12.AttachmentSupport = (doc.YZ_Plane, [""])
sketch12.MapMode = "FlatFace"
sketch12.AttachmentOffset = App.Placement(V(0, 0, 101 * 25.4), App.Rotation())
add_polygon(sketch12, [(6604, 2133.6), (6604, 101.6), (5842, 101.6), (5842, 2133.6)])  # lines 0-3
sketch12.addConstraint(Sketcher.Constraint("Vertical", 0))
sketch12.addConstraint(Sketcher.Constraint("Horizontal", 1))
sketch12.addConstraint(Sketcher.Constraint("Vertical", 2))
sketch12.addConstraint(Sketcher.Constraint("Horizontal", 3))
sketch12.addConstraint(Sketcher.Constraint("DistanceX", 1, 2, 1, 1, Q("30 in")))
sketch12.addConstraint(Sketcher.Constraint("DistanceY", 0, 2, 0, 1, Q("80 in")))
sketch12.addConstraint(Sketcher.Constraint("DistanceX", -1, 1, 0, 2, Q("260 in")))
sketch12.addConstraint(Sketcher.Constraint("DistanceY", -1, 1, 0, 2, Q("4 in")))
sketch12.setExpression("Constraints[8]", "Params.sketch12_width")
sketch12.setExpression("Constraints[9]", "Params.sketch12_height")
pocket10 = doc.addObject("PartDesign::Pocket", "Pocket009")
body.addObject(pocket10)
pocket10.Profile = sketch12
pocket10.setExpression("Length", "Params.pocket10_length")
pocket10.Reversed = True

# Sketch on YZ plane
sketch13 = doc.addObject("Sketcher::SketchObject", "Sketch012")
body.addObject(sketch13)
sketch13.AttachmentSupport = (doc.YZ_Plane, [""])
sketch13.MapMode = "FlatFace"
sketch13.AttachmentOffset = App.Placement(V(0, 0, 4 * 25.4), App.Rotation())
add_polygon(sketch13, [(558.8, 1981.3016), (558.8, 762.1016), (1371.6, 762.1016), (1371.6, 1981.3016)])  # lines 0-3
sketch13.addConstraint(Sketcher.Constraint("Vertical", 0))
sketch13.addConstraint(Sketcher.Constraint("Horizontal", 1))
sketch13.addConstraint(Sketcher.Constraint("Vertical", 2))
sketch13.addConstraint(Sketcher.Constraint("Horizontal", 3))
sketch13.addConstraint(Sketcher.Constraint("DistanceX", 1, 1, 1, 2, Q("32 in")))
sketch13.addConstraint(Sketcher.Constraint("DistanceY", 0, 2, 0, 1, Q("48 in")))
sketch13.addConstraint(Sketcher.Constraint("DistanceX", -1, 1, 0, 2, Q("22 in")))
sketch13.addConstraint(Sketcher.Constraint("DistanceY", -1, 1, 0, 2, Q("30.004 in")))
sketch13.setExpression("Constraints[8]", "Params.sketch13_width")
sketch13.setExpression("Constraints[9]", "Params.sketch13_height")
pocket11 = doc.addObject("PartDesign::Pocket", "Pocket010")
body.addObject(pocket11)
pocket11.Profile = sketch13
pocket11.Type = "ThroughAll"

# Sketch on YZ plane
sketch14 = doc.addObject("Sketcher::SketchObject", "Sketch013")
body.addObject(sketch14)
sketch14.AttachmentSupport = (doc.YZ_Plane, [""])
sketch14.MapMode = "FlatFace"
sketch14.AttachmentOffset = App.Placement(V(0, 0, 136 * 25.4), App.Rotation())
add_polygon(sketch14, [(2336.8, 2133.6), (2336.8, 101.6), (3098.8, 101.6), (3098.8, 2133.6)])  # lines 0-3
sketch14.addConstraint(Sketcher.Constraint("Vertical", 0))
sketch14.addConstraint(Sketcher.Constraint("Horizontal", 1))
sketch14.addConstraint(Sketcher.Constraint("Vertical", 2))
sketch14.addConstraint(Sketcher.Constraint("Horizontal", 3))
sketch14.addConstraint(Sketcher.Constraint("DistanceX", 1, 1, 1, 2, Q("30 in")))
sketch14.addConstraint(Sketcher.Constraint("DistanceY", 0, 2, 0, 1, Q("80 in")))
sketch14.addConstraint(Sketcher.Constraint("DistanceX", -1, 1, 0, 2, Q("92 in")))
sketch14.addConstraint(Sketcher.Constraint("DistanceY", -1, 1, 0, 2, Q("4 in")))
sketch14.setExpression("Constraints[8]", "Params.sketch14_width")
sketch14.setExpression("Constraints[9]", "Params.sketch14_height")
pocket12 = doc.addObject("PartDesign::Pocket", "Pocket011")
body.addObject(pocket12)
pocket12.Profile = sketch14
pocket12.setExpression("Length", "Params.pocket12_length")

# Sketch on YZ plane
sketch15 = doc.addObject("Sketcher::SketchObject", "Sketch014")
body.addObject(sketch15)
sketch15.AttachmentSupport = (doc.YZ_Plane, [""])
sketch15.MapMode = "FlatFace"
sketch15.AttachmentOffset = App.Placement(V(0, 0, 136 * 25.4), App.Rotation())
add_polygon(sketch15, [(3810, 2133.6), (3810, 101.6), (4572, 101.6), (4572, 2133.6)])  # lines 0-3
sketch15.addConstraint(Sketcher.Constraint("Vertical", 0))
sketch15.addConstraint(Sketcher.Constraint("Horizontal", 1))
sketch15.addConstraint(Sketcher.Constraint("Vertical", 2))
sketch15.addConstraint(Sketcher.Constraint("Horizontal", 3))
sketch15.addConstraint(Sketcher.Constraint("DistanceX", 1, 1, 1, 2, Q("30 in")))
sketch15.addConstraint(Sketcher.Constraint("DistanceY", 0, 2, 0, 1, Q("80 in")))
sketch15.addConstraint(Sketcher.Constraint("DistanceX", -1, 1, 0, 2, Q("150 in")))
sketch15.addConstraint(Sketcher.Constraint("DistanceY", -1, 1, 0, 2, Q("4 in")))
sketch15.setExpression("Constraints[8]", "Params.sketch15_width")
sketch15.setExpression("Constraints[9]", "Params.sketch15_height")
pocket13 = doc.addObject("PartDesign::Pocket", "Pocket012")
body.addObject(pocket13)
pocket13.Profile = sketch15
pocket13.setExpression("Length", "Params.pocket13_length")

# Sketch on YZ plane
sketch16 = doc.addObject("Sketcher::SketchObject", "Sketch015")
body.addObject(sketch16)
sketch16.AttachmentSupport = (doc.YZ_Plane, [""])
sketch16.MapMode = "FlatFace"
sketch16.AttachmentOffset = App.Placement(V(0, 0, 345 * 25.4), App.Rotation())
add_polygon(sketch16, [(4267.2, 2133.6), (4267.2, 101.6), (3657.6, 101.6), (3657.6, 2133.6)])  # lines 0-3
sketch16.addConstraint(Sketcher.Constraint("Vertical", 0))
sketch16.addConstraint(Sketcher.Constraint("Horizontal", 1))
sketch16.addConstraint(Sketcher.Constraint("Vertical", 2))
sketch16.addConstraint(Sketcher.Constraint("Horizontal", 3))
sketch16.addConstraint(Sketcher.Constraint("DistanceX", 1, 2, 1, 1, Q("24 in")))
sketch16.addConstraint(Sketcher.Constraint("DistanceY", 0, 2, 0, 1, Q("80 in")))
sketch16.addConstraint(Sketcher.Constraint("DistanceX", -1, 1, 0, 2, Q("168 in")))
sketch16.addConstraint(Sketcher.Constraint("DistanceY", -1, 1, 0, 2, Q("4 in")))
sketch16.setExpression("Constraints[8]", "Params.sketch16_width")
sketch16.setExpression("Constraints[9]", "Params.sketch16_height")
pocket14 = doc.addObject("PartDesign::Pocket", "Pocket013")
body.addObject(pocket14)
pocket14.Profile = sketch16
pocket14.setExpression("Length", "Params.pocket14_length")
pocket14.Reversed = True

# Sketch on XZ plane
sketch17 = doc.addObject("Sketcher::SketchObject", "Sketch016")
body.addObject(sketch17)
sketch17.AttachmentSupport = (doc.XZ_Plane, [""])
sketch17.MapMode = "FlatFace"
sketch17.AttachmentOffset = App.Placement(V(0, 0, -134 * 25.4), App.Rotation())
add_polygon(sketch17, [(7772.4, 2133.6), (7772.4, 101.6), (8763, 101.6), (8763, 2133.6)])  # lines 0-3
sketch17.addConstraint(Sketcher.Constraint("Vertical", 0))
sketch17.addConstraint(Sketcher.Constraint("Horizontal", 1))
sketch17.addConstraint(Sketcher.Constraint("Vertical", 2))
sketch17.addConstraint(Sketcher.Constraint("Horizontal", 3))
sketch17.addConstraint(Sketcher.Constraint("DistanceX", 1, 1, 1, 2, Q("39 in")))
sketch17.addConstraint(Sketcher.Constraint("DistanceY", 0, 2, 0, 1, Q("80 in")))
sketch17.addConstraint(Sketcher.Constraint("DistanceX", -1, 1, 0, 2, Q("306 in")))
sketch17.addConstraint(Sketcher.Constraint("DistanceY", -1, 1, 0, 2, Q("4 in")))
sketch17.setExpression("Constraints[8]", "Params.sketch17_width")
sketch17.setExpression("Constraints[9]", "Params.sketch17_height")
pocket15 = doc.addObject("PartDesign::Pocket", "Pocket014")
body.addObject(pocket15)
pocket15.Profile = sketch17
pocket15.setExpression("Length", "Params.pocket15_length")

# Sketch on XZ plane
sketch18 = doc.addObject("Sketcher::SketchObject", "Sketch017")
body.addObject(sketch18)
sketch18.AttachmentSupport = (doc.XZ_Plane, [""])
sketch18.MapMode = "FlatFace"
sketch18.AttachmentOffset = App.Placement(V(0, 0, -174 * 25.4), App.Rotation())
add_polygon(sketch18, [(7874, 2133.6), (7874, 101.6), (8636, 101.6), (8636, 2133.6)])  # lines 0-3
sketch18.addConstraint(Sketcher.Constraint("Vertical", 0))
sketch18.addConstraint(Sketcher.Constraint("Horizontal", 1))
sketch18.addConstraint(Sketcher.Constraint("Vertical", 2))
sketch18.addConstraint(Sketcher.Constraint("Horizontal", 3))
sketch18.addConstraint(Sketcher.Constraint("DistanceX", 1, 1, 1, 2, Q("30 in")))
sketch18.addConstraint(Sketcher.Constraint("DistanceY", 0, 2, 0, 1, Q("80 in")))
sketch18.addConstraint(Sketcher.Constraint("DistanceX", -1, 1, 0, 2, Q("310 in")))
sketch18.addConstraint(Sketcher.Constraint("DistanceY", -1, 1, 0, 2, Q("4 in")))
sketch18.setExpression("Constraints[8]", "Params.sketch18_width")
sketch18.setExpression("Constraints[9]", "Params.sketch18_height")
pocket16 = doc.addObject("PartDesign::Pocket", "Pocket015")
body.addObject(pocket16)
pocket16.Profile = sketch18
pocket16.setExpression("Length", "Params.pocket16_length")

doc.recompute()
